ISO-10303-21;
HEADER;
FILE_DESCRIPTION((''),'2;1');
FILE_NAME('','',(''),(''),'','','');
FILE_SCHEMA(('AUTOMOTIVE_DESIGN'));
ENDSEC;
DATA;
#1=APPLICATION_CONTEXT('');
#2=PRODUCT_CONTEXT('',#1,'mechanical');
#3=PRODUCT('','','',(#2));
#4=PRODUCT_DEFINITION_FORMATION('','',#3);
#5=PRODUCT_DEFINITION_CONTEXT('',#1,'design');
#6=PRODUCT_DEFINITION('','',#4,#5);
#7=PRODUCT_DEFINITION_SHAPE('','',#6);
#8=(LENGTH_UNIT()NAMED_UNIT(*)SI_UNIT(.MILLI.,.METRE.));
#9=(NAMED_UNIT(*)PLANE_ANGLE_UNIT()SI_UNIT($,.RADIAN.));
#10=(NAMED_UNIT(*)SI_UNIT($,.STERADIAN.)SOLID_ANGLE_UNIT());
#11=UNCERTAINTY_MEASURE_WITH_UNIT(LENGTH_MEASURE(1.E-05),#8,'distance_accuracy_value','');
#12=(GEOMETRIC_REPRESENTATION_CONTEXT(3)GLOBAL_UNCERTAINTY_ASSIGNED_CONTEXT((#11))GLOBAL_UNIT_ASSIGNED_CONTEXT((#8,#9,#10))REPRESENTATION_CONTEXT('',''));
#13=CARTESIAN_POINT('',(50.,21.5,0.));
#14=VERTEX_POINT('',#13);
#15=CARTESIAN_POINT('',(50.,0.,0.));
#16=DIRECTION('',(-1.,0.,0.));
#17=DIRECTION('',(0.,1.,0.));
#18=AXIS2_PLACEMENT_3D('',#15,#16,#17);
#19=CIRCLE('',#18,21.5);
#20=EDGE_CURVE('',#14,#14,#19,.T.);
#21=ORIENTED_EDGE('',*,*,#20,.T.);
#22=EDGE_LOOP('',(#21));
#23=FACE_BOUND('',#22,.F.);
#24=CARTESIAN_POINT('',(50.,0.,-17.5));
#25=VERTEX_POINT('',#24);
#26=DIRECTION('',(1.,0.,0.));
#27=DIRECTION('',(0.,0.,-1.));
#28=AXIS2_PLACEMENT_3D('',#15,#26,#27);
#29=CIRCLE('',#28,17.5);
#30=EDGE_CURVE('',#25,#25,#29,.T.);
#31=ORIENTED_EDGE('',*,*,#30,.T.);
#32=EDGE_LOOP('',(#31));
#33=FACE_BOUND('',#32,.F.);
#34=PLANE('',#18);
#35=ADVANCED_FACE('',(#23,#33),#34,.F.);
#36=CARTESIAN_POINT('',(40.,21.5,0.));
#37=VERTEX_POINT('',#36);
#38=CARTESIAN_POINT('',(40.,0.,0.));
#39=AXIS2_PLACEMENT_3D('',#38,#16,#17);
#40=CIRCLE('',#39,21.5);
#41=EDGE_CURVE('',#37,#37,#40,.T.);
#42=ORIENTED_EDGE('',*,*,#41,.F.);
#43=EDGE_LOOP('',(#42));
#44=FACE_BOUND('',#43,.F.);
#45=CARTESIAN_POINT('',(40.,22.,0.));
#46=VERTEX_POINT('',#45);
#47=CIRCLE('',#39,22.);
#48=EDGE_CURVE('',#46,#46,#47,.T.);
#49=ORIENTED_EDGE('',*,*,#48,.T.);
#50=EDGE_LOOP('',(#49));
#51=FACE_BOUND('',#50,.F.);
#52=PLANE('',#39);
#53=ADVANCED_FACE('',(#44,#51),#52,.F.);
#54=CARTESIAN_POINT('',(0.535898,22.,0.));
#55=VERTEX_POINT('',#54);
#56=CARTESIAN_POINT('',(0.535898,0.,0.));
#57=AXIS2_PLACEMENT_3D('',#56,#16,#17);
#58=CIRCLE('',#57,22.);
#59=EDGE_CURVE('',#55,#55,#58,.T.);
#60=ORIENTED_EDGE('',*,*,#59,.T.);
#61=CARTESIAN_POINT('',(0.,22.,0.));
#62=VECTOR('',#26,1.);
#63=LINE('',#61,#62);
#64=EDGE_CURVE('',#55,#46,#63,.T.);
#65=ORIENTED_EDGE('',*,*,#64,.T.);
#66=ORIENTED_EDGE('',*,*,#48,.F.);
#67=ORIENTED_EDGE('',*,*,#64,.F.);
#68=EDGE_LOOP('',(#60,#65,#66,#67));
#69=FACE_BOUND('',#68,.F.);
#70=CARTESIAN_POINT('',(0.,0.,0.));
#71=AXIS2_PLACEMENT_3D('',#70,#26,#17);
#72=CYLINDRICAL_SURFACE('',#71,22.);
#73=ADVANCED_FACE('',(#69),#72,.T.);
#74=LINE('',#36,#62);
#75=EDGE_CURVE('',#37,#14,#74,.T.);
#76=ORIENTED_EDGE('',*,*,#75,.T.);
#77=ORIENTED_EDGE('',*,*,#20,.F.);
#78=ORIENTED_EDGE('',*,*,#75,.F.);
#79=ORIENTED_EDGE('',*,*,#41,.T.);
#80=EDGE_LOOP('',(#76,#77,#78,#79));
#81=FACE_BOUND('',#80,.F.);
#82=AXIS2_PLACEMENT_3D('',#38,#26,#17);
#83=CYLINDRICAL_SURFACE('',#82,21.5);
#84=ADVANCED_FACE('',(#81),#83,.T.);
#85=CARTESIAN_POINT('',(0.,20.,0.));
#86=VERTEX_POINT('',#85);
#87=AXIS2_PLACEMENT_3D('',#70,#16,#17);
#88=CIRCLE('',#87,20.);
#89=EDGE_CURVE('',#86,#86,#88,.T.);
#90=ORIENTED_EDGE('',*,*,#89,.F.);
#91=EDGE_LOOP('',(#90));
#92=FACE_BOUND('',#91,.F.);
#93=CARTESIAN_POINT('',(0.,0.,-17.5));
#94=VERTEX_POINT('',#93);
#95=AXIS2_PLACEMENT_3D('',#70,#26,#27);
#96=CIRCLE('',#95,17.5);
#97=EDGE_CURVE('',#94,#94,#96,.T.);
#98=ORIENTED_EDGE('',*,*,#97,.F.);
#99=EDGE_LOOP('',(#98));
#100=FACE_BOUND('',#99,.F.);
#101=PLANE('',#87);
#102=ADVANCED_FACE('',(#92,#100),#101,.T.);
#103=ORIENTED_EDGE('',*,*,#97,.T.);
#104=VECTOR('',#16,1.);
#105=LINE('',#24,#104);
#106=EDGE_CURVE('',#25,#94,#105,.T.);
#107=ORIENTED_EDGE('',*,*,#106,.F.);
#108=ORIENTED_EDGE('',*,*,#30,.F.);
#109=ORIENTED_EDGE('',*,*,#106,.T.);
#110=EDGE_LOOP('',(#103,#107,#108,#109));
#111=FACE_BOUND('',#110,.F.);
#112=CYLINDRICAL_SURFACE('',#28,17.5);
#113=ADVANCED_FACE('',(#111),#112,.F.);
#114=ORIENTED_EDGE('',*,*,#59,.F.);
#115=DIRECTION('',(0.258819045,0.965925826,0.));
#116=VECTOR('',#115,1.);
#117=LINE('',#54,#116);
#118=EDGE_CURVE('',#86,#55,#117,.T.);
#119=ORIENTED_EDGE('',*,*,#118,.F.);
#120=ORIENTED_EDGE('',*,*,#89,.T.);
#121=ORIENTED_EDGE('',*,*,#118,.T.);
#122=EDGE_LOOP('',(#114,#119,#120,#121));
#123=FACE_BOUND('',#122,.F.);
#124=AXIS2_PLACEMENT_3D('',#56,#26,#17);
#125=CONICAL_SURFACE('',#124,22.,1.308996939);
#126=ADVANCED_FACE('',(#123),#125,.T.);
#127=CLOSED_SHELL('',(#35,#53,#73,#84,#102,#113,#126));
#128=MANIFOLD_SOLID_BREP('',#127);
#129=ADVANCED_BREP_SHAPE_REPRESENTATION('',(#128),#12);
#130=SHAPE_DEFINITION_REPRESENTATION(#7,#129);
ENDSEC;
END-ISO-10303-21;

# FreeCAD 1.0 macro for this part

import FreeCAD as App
import Part
import Sketcher
from FreeCAD import Vector


def edges_at(feature, points):
    """Names of the edges that pass closest to the given points."""
    edges = feature.Shape.Edges
    near = lambda p: min(range(len(edges)), key=lambda i: edges[i].distToShape(Part.Vertex(*p))[0])
    return sorted({f"Edge{near(p) + 1}" for p in points})


def add_polygon(sketch, points):
    """Adds a closed chain of lines whose ends are joined by coincident constraints."""
    first, n = sketch.GeometryCount, len(points)
    for a, b in zip(points, points[1:] + points[:1]):
        sketch.addGeometry(Part.LineSegment(App.Vector(*a, 0), App.Vector(*b, 0)), False)
    for i in range(n):
        sketch.addConstraint(Sketcher.Constraint("Coincident", first + i, 2, first + (i + 1) % n, 1))

doc = App.newDocument("Part")
body = doc.addObject("PartDesign::Body", "Body")

sketch1 = doc.addObject("Sketcher::SketchObject", "Sketch")
body.addObject(sketch1)
sketch1.AttachmentSupport = (doc.XY_Plane, [""])
sketch1.MapMode = "FlatFace"
add_polygon(sketch1, [(0, 22), (0, 0), (50, 0), (50, 21.5), (40, 21.5), (40, 22)])
sketch1.addConstraint([
    Sketcher.Constraint("Vertical", 0),
    Sketcher.Constraint("Horizontal", 1),
    Sketcher.Constraint("Vertical", 2),
    Sketcher.Constraint("Horizontal", 3),
    Sketcher.Constraint("Vertical", 4),
    Sketcher.Constraint("Horizontal", 5),
    Sketcher.Constraint("Coincident", 0, 2, -1, 1),
    Sketcher.Constraint("DistanceX", 1, 1, 1, 2, 50.0),
    Sketcher.Constraint("DistanceX", 5, 2, 5, 1, 40.0),
    Sketcher.Constraint("DistanceY", 0, 2, 0, 1, 22.0),
    Sketcher.Constraint("DistanceY", 2, 1, 2, 2, 21.5),
])
revolution = doc.addObject("PartDesign::Revolution", "Revolution")
body.addObject(revolution)
revolution.Profile = sketch1
revolution.ReferenceAxis = (sketch1, ["H_Axis"])
revolution.Angle = 360
doc.recompute()

chamfer = doc.addObject("PartDesign::Chamfer", "Chamfer")
body.addObject(chamfer)
chamfer.Base = (revolution, edges_at(revolution, [(0, -22, 0)]))
chamfer.ChamferType = "Distance and Angle"
chamfer.Size = 2
chamfer.Angle = 15

sketch2 = doc.addObject("Sketcher::SketchObject", "Sketch001")
body.addObject(sketch2)
sketch2.AttachmentSupport = (doc.YZ_Plane, [""])
sketch2.MapMode = "FlatFace"
sketch2.AttachmentOffset = App.Placement(Vector(0, 0, 50), App.Rotation())
sketch2.addGeometry(Part.Circle(Vector(0, 0, 0), Vector(0, 0, 1), 18), False)
sketch2.addConstraint([
    Sketcher.Constraint("Coincident", 0, 3, -1, 1),
    Sketcher.Constraint("Diameter", 0, 35.0),
])
pocket1 = doc.addObject("PartDesign::Pocket", "Pocket")
body.addObject(pocket1)
pocket1.Profile = sketch2
pocket1.Length = 50

doc.recompute()
